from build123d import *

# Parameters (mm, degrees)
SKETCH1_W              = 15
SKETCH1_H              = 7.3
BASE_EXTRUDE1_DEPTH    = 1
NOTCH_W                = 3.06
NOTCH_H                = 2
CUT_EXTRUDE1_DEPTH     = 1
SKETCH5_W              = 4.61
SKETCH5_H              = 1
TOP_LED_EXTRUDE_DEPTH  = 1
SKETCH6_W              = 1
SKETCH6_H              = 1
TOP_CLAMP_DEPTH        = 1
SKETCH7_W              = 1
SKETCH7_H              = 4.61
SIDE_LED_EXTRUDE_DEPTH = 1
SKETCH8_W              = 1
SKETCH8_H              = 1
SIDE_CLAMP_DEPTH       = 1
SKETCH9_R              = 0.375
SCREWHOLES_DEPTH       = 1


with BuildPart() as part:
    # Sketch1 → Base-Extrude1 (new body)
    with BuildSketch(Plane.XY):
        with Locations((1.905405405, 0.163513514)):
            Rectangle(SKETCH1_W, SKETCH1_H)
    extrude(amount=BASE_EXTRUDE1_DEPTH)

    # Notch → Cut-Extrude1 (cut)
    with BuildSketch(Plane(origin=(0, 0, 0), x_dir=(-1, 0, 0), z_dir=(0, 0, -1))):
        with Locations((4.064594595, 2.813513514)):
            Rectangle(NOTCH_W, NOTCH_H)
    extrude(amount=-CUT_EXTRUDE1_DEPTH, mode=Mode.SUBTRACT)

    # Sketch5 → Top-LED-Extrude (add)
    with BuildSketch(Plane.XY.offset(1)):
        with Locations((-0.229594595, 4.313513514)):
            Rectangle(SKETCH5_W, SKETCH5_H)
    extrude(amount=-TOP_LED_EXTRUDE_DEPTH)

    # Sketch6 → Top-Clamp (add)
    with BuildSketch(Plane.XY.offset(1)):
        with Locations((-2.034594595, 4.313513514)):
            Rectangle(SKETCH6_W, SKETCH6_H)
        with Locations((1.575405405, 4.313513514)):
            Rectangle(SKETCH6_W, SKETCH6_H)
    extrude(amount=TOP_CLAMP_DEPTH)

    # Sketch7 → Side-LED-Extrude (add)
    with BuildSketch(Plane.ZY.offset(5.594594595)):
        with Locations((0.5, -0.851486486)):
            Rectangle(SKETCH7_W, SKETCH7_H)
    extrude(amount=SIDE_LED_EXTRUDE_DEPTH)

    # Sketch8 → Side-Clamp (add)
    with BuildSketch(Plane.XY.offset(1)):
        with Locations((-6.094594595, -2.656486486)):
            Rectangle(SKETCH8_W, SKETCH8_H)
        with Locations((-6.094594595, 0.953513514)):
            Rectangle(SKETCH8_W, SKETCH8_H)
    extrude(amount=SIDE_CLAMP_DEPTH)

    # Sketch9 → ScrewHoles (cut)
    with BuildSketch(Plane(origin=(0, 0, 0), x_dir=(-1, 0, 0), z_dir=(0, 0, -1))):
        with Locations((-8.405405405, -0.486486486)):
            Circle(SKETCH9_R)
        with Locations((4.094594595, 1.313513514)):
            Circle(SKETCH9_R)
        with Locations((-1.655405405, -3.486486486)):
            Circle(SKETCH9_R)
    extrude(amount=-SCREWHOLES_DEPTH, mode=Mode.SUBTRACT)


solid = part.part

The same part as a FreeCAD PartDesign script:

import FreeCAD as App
import Part
import Sketcher
from FreeCAD import Vector
Q = App.Units.Quantity

doc = App.newDocument("Part")
params = doc.addObject("Spreadsheet::Sheet", "Params")
for row, (alias, value) in enumerate([
    ("sketch1_width", "15 mm"),
    ("sketch1_height", "7.3 mm"),
    ("pad1_length", "1 mm"),
    ("sketch2_height", "2 mm"),
    ("sketch2_width", "3.06 mm"),
    ("pocket1_length", "1 mm"),
    ("sketch3_height", "1 mm"),
    ("sketch3_width", "4.61 mm"),
    ("pad2_length", "1 mm"),
    ("sketch4_width", "1 mm"),
    ("pad3_length", "1 mm"),
    ("sketch5_height", "1 mm"),
    ("sketch5_width", "4.61 mm"),
    ("pad4_length", "1 mm"),
    ("sketch6_width", "1 mm"),
    ("pad5_length", "1 mm"),
    ("sketch7_diameter", "0.75 mm"),
    ("pocket2_length", "1 mm"),
], start=1):
    params.set(f"A{row}", alias)
    params.set(f"B{row}", "=" + value)
    params.setAlias(f"B{row}", alias)

body = doc.addObject("PartDesign::Body", "Body")

sketch1 = body.newObject("Sketcher::SketchObject", "Sketch")
sketch1.AttachmentSupport = (doc.getObject("XY_Plane"), [""])
sketch1.MapMode = "FlatFace"
sketch1.addGeometry([
    Part.LineSegment(Vector(-5.594595, 3.813514, 0), Vector(-5.594595, -3.486486, 0)),
    Part.LineSegment(Vector(-5.594595, -3.486486, 0), Vector(9.405405, -3.486486, 0)),
    Part.LineSegment(Vector(9.405405, -3.486486, 0), Vector(9.405405, 3.813514, 0)),
    Part.LineSegment(Vector(9.405405, 3.813514, 0), Vector(-5.594595, 3.813514, 0)),
], False)
sketch1.addConstraint([
    Sketcher.Constraint("Coincident", 0, 2, 1, 1),
    Sketcher.Constraint("Coincident", 1, 2, 2, 1),
    Sketcher.Constraint("Coincident", 2, 2, 3, 1),
    Sketcher.Constraint("Coincident", 3, 2, 0, 1),
    Sketcher.Constraint("Vertical", 0),
    Sketcher.Constraint("Horizontal", 1),
    Sketcher.Constraint("Vertical", 2),
    Sketcher.Constraint("Horizontal", 3),
    Sketcher.Constraint("DistanceX", 1, 1, 1, 2, Q("15 mm")),
    Sketcher.Constraint("DistanceY", 0, 2, 0, 1, Q("7.3 mm")),
    Sketcher.Constraint("DistanceX", 0, 2, -1, 1, Q("5.594595 mm")),
    Sketcher.Constraint("DistanceY", 0, 2, -1, 1, Q("3.486486 mm")),
])
sketch1.setExpression("Constraints[8]", "Params.sketch1_width")
sketch1.setExpression("Constraints[9]", "Params.sketch1_height")
pad1 = body.newObject("PartDesign::Pad", "Pad")
pad1.Profile = sketch1
pad1.setExpression("Length", "Params.pad1_length")

sketch2 = body.newObject("Sketcher::SketchObject", "Sketch001")
sketch2.AttachmentSupport = (doc.getObject("XY_Plane"), [""])
sketch2.MapMode = "FlatFace"
sketch2.addGeometry([
    Part.LineSegment(Vector(-2.534595, 3.813514, 0), Vector(-2.534595, 1.813514, 0)),
    Part.LineSegment(Vector(-2.534595, 1.813514, 0), Vector(-5.594595, 1.813514, 0)),
    Part.LineSegment(Vector(-5.594595, 1.813514, 0), Vector(-5.594595, 3.813514, 0)),
    Part.LineSegment(Vector(-5.594595, 3.813514, 0), Vector(-2.534595, 3.813514, 0)),
], False)
sketch2.addConstraint([
    Sketcher.Constraint("Coincident", 0, 2, 1, 1),
    Sketcher.Constraint("Coincident", 1, 2, 2, 1),
    Sketcher.Constraint("Coincident", 2, 2, 3, 1),
    Sketcher.Constraint("Coincident", 3, 2, 0, 1),
    Sketcher.Constraint("Vertical", 0),
    Sketcher.Constraint("Horizontal", 1),
    Sketcher.Constraint("Vertical", 2),
    Sketcher.Constraint("Horizontal", 3),
    Sketcher.Constraint("DistanceY", 0, 2, 0, 1, Q("2 mm")),
    Sketcher.Constraint("DistanceX", 1, 2, 1, 1, Q("3.06 mm")),
    Sketcher.Constraint("DistanceX", 0, 2, -1, 1, Q("2.534595 mm")),
    Sketcher.Constraint("DistanceY", -1, 1, 0, 2, Q("1.813514 mm")),
])
sketch2.setExpression("Constraints[8]", "Params.sketch2_height")
sketch2.setExpression("Constraints[9]", "Params.sketch2_width")
pocket1 = body.newObject("PartDesign::Pocket", "Pocket")
pocket1.Profile = sketch2
pocket1.setExpression("Length", "Params.pocket1_length")
pocket1.Reversed = True

sketch3 = body.newObject("Sketcher::SketchObject", "Sketch002")
sketch3.AttachmentSupport = (doc.getObject("XY_Plane"), [""])
sketch3.MapMode = "FlatFace"
sketch3.AttachmentOffset = App.Placement(Vector(0, 0, 1), App.Rotation())
sketch3.addGeometry([
    Part.LineSegment(Vector(-2.534595, 4.813514, 0), Vector(-2.534595, 3.813514, 0)),
    Part.LineSegment(Vector(-2.534595, 3.813514, 0), Vector(2.075405, 3.813514, 0)),
    Part.LineSegment(Vector(2.075405, 3.813514, 0), Vector(2.075405, 4.813514, 0)),
    Part.LineSegment(Vector(2.075405, 4.813514, 0), Vector(-2.534595, 4.813514, 0)),
], False)
sketch3.addConstraint([
    Sketcher.Constraint("Coincident", 0, 2, 1, 1),
    Sketcher.Constraint("Coincident", 1, 2, 2, 1),
    Sketcher.Constraint("Coincident", 2, 2, 3, 1),
    Sketcher.Constraint("Coincident", 3, 2, 0, 1),
    Sketcher.Constraint("Vertical", 0),
    Sketcher.Constraint("Horizontal", 1),
    Sketcher.Constraint("Vertical", 2),
    Sketcher.Constraint("Horizontal", 3),
    Sketcher.Constraint("DistanceY", 0, 2, 0, 1, Q("1 mm")),
    Sketcher.Constraint("DistanceX", 1, 1, 1, 2, Q("4.61 mm")),
    Sketcher.Constraint("DistanceX", 0, 2, -1, 1, Q("2.534595 mm")),
    Sketcher.Constraint("DistanceY", -1, 1, 0, 2, Q("3.813514 mm")),
])
sketch3.setExpression("Constraints[8]", "Params.sketch3_height")
sketch3.setExpression("Constraints[9]", "Params.sketch3_width")
pad2 = body.newObject("PartDesign::Pad", "Pad001")
pad2.Profile = sketch3
pad2.setExpression("Length", "Params.pad2_length")
pad2.Reversed = True

sketch4 = body.newObject("Sketcher::SketchObject", "Sketch003")
sketch4.AttachmentSupport = (doc.getObject("XY_Plane"), [""])
sketch4.MapMode = "FlatFace"
sketch4.AttachmentOffset = App.Placement(Vector(0, 0, 1), App.Rotation())
sketch4.addGeometry([
    Part.LineSegment(Vector(-2.534595, 4.813514, 0), Vector(-2.534595, 3.813514, 0)),
    Part.LineSegment(Vector(-2.534595, 3.813514, 0), Vector(-1.534595, 3.813514, 0)),
    Part.LineSegment(Vector(-1.534595, 3.813514, 0), Vector(-1.534595, 4.813514, 0)),
    Part.LineSegment(Vector(-1.534595, 4.813514, 0), Vector(-2.534595, 4.813514, 0)),
    Part.LineSegment(Vector(1.075405, 4.813514, 0), Vector(1.075405, 3.813514, 0)),
    Part.LineSegment(Vector(1.075405, 3.813514, 0), Vector(2.075405, 3.813514, 0)),
    Part.LineSegment(Vector(2.075405, 3.813514, 0), Vector(2.075405, 4.813514, 0)),
    Part.LineSegment(Vector(2.075405, 4.813514, 0), Vector(1.075405, 4.813514, 0)),
], False)
sketch4.addConstraint([
    Sketcher.Constraint("Coincident", 0, 2, 1, 1),
    Sketcher.Constraint("Coincident", 1, 2, 2, 1),
    Sketcher.Constraint("Coincident", 2, 2, 3, 1),
    Sketcher.Constraint("Coincident", 3, 2, 0, 1),
    Sketcher.Constraint("Coincident", 4, 2, 5, 1),
    Sketcher.Constraint("Coincident", 5, 2, 6, 1),
    Sketcher.Constraint("Coincident", 6, 2, 7, 1),
    Sketcher.Constraint("Coincident", 7, 2, 4, 1),
    Sketcher.Constraint("Vertical", 0),
    Sketcher.Constraint("Horizontal", 1),
    Sketcher.Constraint("Vertical", 2),
    Sketcher.Constraint("Horizontal", 3),
    Sketcher.Constraint("Vertical", 4),
    Sketcher.Constraint("Horizontal", 5),
    Sketcher.Constraint("Vertical", 6),
    Sketcher.Constraint("Horizontal", 7),
    Sketcher.Constraint("Horizontal", 1, 2, 4, 2),
    Sketcher.Constraint("Horizontal", 3, 2, 6, 2),
    Sketcher.Constraint("Equal", 3, 5),
    Sketcher.Constraint("Equal", 7, 0),
    Sketcher.Constraint("DistanceX", 1, 1, 1, 2, Q("1 mm")),
    Sketcher.Constraint("DistanceX", 1, 2, 4, 2, Q("2.61 mm")),
    Sketcher.Constraint("DistanceX", 0, 2, -1, 1, Q("2.534595 mm")),
    Sketcher.Constraint("DistanceY", -1, 1, 0, 2, Q("3.813514 mm")),
])
sketch4.setExpression("Constraints[20]", "Params.sketch4_width")
pad3 = body.newObject("PartDesign::Pad", "Pad002")
pad3.Profile = sketch4
pad3.setExpression("Length", "Params.pad3_length")

sketch5 = body.newObject("Sketcher::SketchObject", "Sketch004")
sketch5.AttachmentSupport = (doc.getObject("YZ_Plane"), [""])
sketch5.MapMode = "FlatFace"
sketch5.AttachmentOffset = App.Placement(Vector(0, 0, -5.594595), App.Rotation())
sketch5.addGeometry([
    Part.LineSegment(Vector(1.453514, 0, 0), Vector(-3.156486, 0, 0)),
    Part.LineSegment(Vector(-3.156486, 0, 0), Vector(-3.156486, 1, 0)),
    Part.LineSegment(Vector(-3.156486, 1, 0), Vector(1.453514, 1, 0)),
    Part.LineSegment(Vector(1.453514, 1, 0), Vector(1.453514, 0, 0)),
], False)
sketch5.addConstraint([
    Sketcher.Constraint("Coincident", 0, 2, 1, 1),
    Sketcher.Constraint("Coincident", 1, 2, 2, 1),
    Sketcher.Constraint("Coincident", 2, 2, 3, 1),
    Sketcher.Constraint("Coincident", 3, 2, 0, 1),
    Sketcher.Constraint("Horizontal", 0),
    Sketcher.Constraint("Vertical", 1),
    Sketcher.Constraint("Horizontal", 2),
    Sketcher.Constraint("Vertical", 3),
    Sketcher.Constraint("PointOnObject", 0, 2, -1),
    Sketcher.Constraint("DistanceY", 1, 1, 1, 2, Q("1 mm")),
    Sketcher.Constraint("DistanceX", 0, 2, 0, 1, Q("4.61 mm")),
    Sketcher.Constraint("DistanceX", 0, 2, -1, 1, Q("3.156486 mm")),
])
sketch5.setExpression("Constraints[9]", "Params.sketch5_height")
sketch5.setExpression("Constraints[10]", "Params.sketch5_width")
pad4 = body.newObject("PartDesign::Pad", "Pad003")
pad4.Profile = sketch5
pad4.setExpression("Length", "Params.pad4_length")
pad4.Reversed = True

sketch6 = body.newObject("Sketcher::SketchObject", "Sketch005")
sketch6.AttachmentSupport = (doc.getObject("XY_Plane"), [""])
sketch6.MapMode = "FlatFace"
sketch6.AttachmentOffset = App.Placement(Vector(0, 0, 1), App.Rotation())
sketch6.addGeometry([
    Part.LineSegment(Vector(-6.594595, -2.156486, 0), Vector(-6.594595, -3.156486, 0)),
    Part.LineSegment(Vector(-6.594595, -3.156486, 0), Vector(-5.594595, -3.156486, 0)),
    Part.LineSegment(Vector(-5.594595, -3.156486, 0), Vector(-5.594595, -2.156486, 0)),
    Part.LineSegment(Vector(-5.594595, -2.156486, 0), Vector(-6.594595, -2.156486, 0)),
    Part.LineSegment(Vector(-6.594595, 1.453514, 0), Vector(-6.594595, 0.453514, 0)),
    Part.LineSegment(Vector(-6.594595, 0.453514, 0), Vector(-5.594595, 0.453514, 0)),
    Part.LineSegment(Vector(-5.594595, 0.453514, 0), Vector(-5.594595, 1.453514, 0)),
    Part.LineSegment(Vector(-5.594595, 1.453514, 0), Vector(-6.594595, 1.453514, 0)),
], False)
sketch6.addConstraint([
    Sketcher.Constraint("Coincident", 0, 2, 1, 1),
    Sketcher.Constraint("Coincident", 1, 2, 2, 1),
    Sketcher.Constraint("Coincident", 2, 2, 3, 1),
    Sketcher.Constraint("Coincident", 3, 2, 0, 1),
    Sketcher.Constraint("Coincident", 4, 2, 5, 1),
    Sketcher.Constraint("Coincident", 5, 2, 6, 1),
    Sketcher.Constraint("Coincident", 6, 2, 7, 1),
    Sketcher.Constraint("Coincident", 7, 2, 4, 1),
    Sketcher.Constraint("Vertical", 0),
    Sketcher.Constraint("Horizontal", 1),
    Sketcher.Constraint("Vertical", 2),
    Sketcher.Constraint("Horizontal", 3),
    Sketcher.Constraint("Vertical", 4),
    Sketcher.Constraint("Horizontal", 5),
    Sketcher.Constraint("Vertical", 6),
    Sketcher.Constraint("Horizontal", 7),
    Sketcher.Constraint("Vertical", 3, 2, 4, 2),
    Sketcher.Constraint("Vertical", 2, 2, 5, 2),
    Sketcher.Constraint("Equal", 7, 0),
    Sketcher.Constraint("Equal", 2, 4),
    Sketcher.Constraint("DistanceX", 1, 1, 1, 2, Q("1 mm")),
    Sketcher.Constraint("DistanceY", 3, 2, 4, 2, Q("2.61 mm")),
    Sketcher.Constraint("DistanceX", 0, 2, -1, 1, Q("6.594595 mm")),
    Sketcher.Constraint("DistanceY", 0, 2, -1, 1, Q("3.156486 mm")),
])
sketch6.setExpression("Constraints[20]", "Params.sketch6_width")
pad5 = body.newObject("PartDesign::Pad", "Pad004")
pad5.Profile = sketch6
pad5.setExpression("Length", "Params.pad5_length")

sketch7 = body.newObject("Sketcher::SketchObject", "Sketch006")
sketch7.AttachmentSupport = (doc.getObject("XY_Plane"), [""])
sketch7.MapMode = "FlatFace"
sketch7.addGeometry([
    Part.Circle(Vector(8.405405, -0.486486, 0), Vector(0, 0, 1), 0.375),
    Part.Circle(Vector(-4.094595, 1.313514, 0), Vector(0, 0, 1), 0.375),
    Part.Circle(Vector(1.655405, -3.486486, 0), Vector(0, 0, 1), 0.375),
], False)
sketch7.addConstraint([
    Sketcher.Constraint("Equal", 0, 1),
    Sketcher.Constraint("Equal", 1, 2),
    Sketcher.Constraint("Diameter", 0, Q("0.75 mm")),
    Sketcher.Constraint("DistanceY", 2, 3, 0, 3, Q("3 mm")),
    Sketcher.Constraint("DistanceX", 1, 3, 0, 3, Q("12.5 mm")),
    Sketcher.Constraint("DistanceY", 0, 3, 1, 3, Q("1.8 mm")),
    Sketcher.Constraint("DistanceX", 2, 3, 0, 3, Q("6.75 mm")),
    Sketcher.Constraint("DistanceX", -1, 1, 0, 3, Q("8.405405 mm")),
    Sketcher.Constraint("DistanceY", 0, 3, -1, 1, Q("0.486486 mm")),
])
sketch7.setExpression("Constraints[2]", "Params.sketch7_diameter")
pocket2 = body.newObject("PartDesign::Pocket", "Pocket001")
pocket2.Profile = sketch7
pocket2.setExpression("Length", "Params.pocket2_length")
pocket2.Reversed = True

doc.recompute()
